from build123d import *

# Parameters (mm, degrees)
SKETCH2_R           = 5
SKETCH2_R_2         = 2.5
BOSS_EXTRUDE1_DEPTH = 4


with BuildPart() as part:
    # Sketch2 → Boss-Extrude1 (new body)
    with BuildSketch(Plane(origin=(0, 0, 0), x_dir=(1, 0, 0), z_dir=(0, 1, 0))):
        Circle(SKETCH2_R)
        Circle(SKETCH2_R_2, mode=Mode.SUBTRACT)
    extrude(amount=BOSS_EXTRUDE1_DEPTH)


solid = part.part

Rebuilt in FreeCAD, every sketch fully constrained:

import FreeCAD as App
import Part
import Sketcher

V = App.Vector

doc = App.newDocument("Part")
params = doc.addObject("Spreadsheet::Sheet", "Params")
for row, (alias, value) in enumerate([
    ("sketch1_diameter", "10 mm"),
    ("sketch1_diameter2", "5 mm"),
    ("pad1_length", "4 mm"),
], start=1):
    params.set(f"A{row}", alias)
    params.set(f"B{row}", "=" + value)
    params.setAlias(f"B{row}", alias)

body = doc.addObject("PartDesign::Body", "Body")

# Sketch on XZ plane
sketch1 = body.newObject("Sketcher::SketchObject", "Sketch")
sketch1.AttachmentSupport = (doc.getObject("XZ_Plane"), [""])
sketch1.MapMode = "FlatFace"
sketch1.addGeometry([
    Part.Circle(V(0, 0, 0), V(0, 0, 1), 5),
    Part.Circle(V(0, 0, 0), V(0, 0, 1), 2.5),
], False)
sketch1.addConstraint([
    Sketcher.Constraint("Coincident", 0, 3, -1, 1),
    Sketcher.Constraint("Coincident", 1, 3, -1, 1),
    Sketcher.Constraint("Diameter", 0, 10.0),
    Sketcher.Constraint("Diameter", 1, 5.0),
])
sketch1.setExpression("Constraints[2]", "Params.sketch1_diameter")
sketch1.setExpression("Constraints[3]", "Params.sketch1_diameter2")
pad1 = body.newObject("PartDesign::Pad", "Pad")
pad1.Profile = sketch1
pad1.setExpression("Length", "Params.pad1_length")
pad1.Reversed = True

doc.recompute()
